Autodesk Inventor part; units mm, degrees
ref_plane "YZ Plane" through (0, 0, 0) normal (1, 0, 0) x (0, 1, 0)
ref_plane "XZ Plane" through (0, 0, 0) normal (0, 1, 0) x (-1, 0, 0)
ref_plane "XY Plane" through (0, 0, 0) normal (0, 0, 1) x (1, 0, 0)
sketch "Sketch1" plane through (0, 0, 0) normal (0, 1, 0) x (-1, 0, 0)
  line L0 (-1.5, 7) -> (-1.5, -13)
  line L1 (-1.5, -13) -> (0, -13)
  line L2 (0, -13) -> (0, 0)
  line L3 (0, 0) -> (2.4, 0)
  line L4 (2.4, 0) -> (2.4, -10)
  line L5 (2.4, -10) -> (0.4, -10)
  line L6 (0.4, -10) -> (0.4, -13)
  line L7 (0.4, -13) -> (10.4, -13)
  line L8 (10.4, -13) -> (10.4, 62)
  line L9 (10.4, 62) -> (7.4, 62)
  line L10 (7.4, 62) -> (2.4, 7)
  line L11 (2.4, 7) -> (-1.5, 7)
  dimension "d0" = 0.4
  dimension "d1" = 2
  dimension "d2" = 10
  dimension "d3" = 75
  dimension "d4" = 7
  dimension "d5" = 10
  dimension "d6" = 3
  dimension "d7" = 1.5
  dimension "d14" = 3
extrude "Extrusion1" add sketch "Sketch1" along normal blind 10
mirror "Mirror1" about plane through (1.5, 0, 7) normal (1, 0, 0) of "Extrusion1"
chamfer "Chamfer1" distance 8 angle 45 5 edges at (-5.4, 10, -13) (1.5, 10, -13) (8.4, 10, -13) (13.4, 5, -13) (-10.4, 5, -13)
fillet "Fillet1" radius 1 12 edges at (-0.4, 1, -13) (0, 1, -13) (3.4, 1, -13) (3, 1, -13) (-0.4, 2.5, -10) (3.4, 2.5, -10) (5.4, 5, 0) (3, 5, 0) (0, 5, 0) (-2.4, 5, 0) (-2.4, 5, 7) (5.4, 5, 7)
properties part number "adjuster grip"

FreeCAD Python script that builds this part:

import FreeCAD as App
import Part
import Sketcher
from FreeCAD import Vector


def edges_at(feature, points):
    """Names of the edges that pass closest to the given points."""
    edges = feature.Shape.Edges
    near = lambda p: min(range(len(edges)), key=lambda i: edges[i].distToShape(Part.Vertex(*p))[0])
    return sorted({f"Edge{near(p) + 1}" for p in points})


def add_polygon(sketch, points):
    """Adds a closed chain of lines whose ends are joined by coincident constraints."""
    first, n = sketch.GeometryCount, len(points)
    for a, b in zip(points, points[1:] + points[:1]):
        sketch.addGeometry(Part.LineSegment(App.Vector(*a, 0), App.Vector(*b, 0)), False)
    for i in range(n):
        sketch.addConstraint(Sketcher.Constraint("Coincident", first + i, 2, first + (i + 1) % n, 1))

doc = App.newDocument("Part")
params = doc.addObject("Spreadsheet::Sheet", "Params")
for row, (alias, value) in enumerate([
    ("sketch1_width", "2 mm"),
    ("sketch1_width2", "10 mm"),
    ("sketch1_width3", "3 mm"),
    ("sketch1_height", "75 mm"),
    ("sketch1_width4", "1.5 mm"),
    ("pad1_length", "10 mm"),
    ("chamfer_size", "8 mm"),
    ("fillet_radius", "1 mm"),
], start=1):
    params.set(f"A{row}", alias)
    params.set(f"B{row}", "=" + value)
    params.setAlias(f"B{row}", alias)

body = doc.addObject("PartDesign::Body", "Body")

# Sketch on XZ plane
sketch1 = doc.addObject("Sketcher::SketchObject", "Sketch")
body.addObject(sketch1)
sketch1.AttachmentSupport = (doc.XZ_Plane, [""])
sketch1.MapMode = "FlatFace"
add_polygon(sketch1, [(-2.4, 7), (1.5, 7), (1.5, -13), (0, -13), (0, 0), (-2.4, 0), (-2.4, -10), (-0.4, -10), (-0.4, -13), (-10.4, -13), (-10.4, 62), (-7.4, 62)])  # lines 0-11
sketch1.addConstraint(Sketcher.Constraint("Horizontal", 0))
sketch1.addConstraint(Sketcher.Constraint("Vertical", 1))
sketch1.addConstraint(Sketcher.Constraint("Horizontal", 2))
sketch1.addConstraint(Sketcher.Constraint("Vertical", 3))
sketch1.addConstraint(Sketcher.Constraint("Horizontal", 4))
sketch1.addConstraint(Sketcher.Constraint("Vertical", 5))
sketch1.addConstraint(Sketcher.Constraint("Horizontal", 6))
sketch1.addConstraint(Sketcher.Constraint("Vertical", 7))
sketch1.addConstraint(Sketcher.Constraint("Horizontal", 8))
sketch1.addConstraint(Sketcher.Constraint("Vertical", 9))
sketch1.addConstraint(Sketcher.Constraint("Horizontal", 10))
sketch1.addConstraint(Sketcher.Constraint("Coincident", 3, 2, -1, 1))
sketch1.addConstraint(Sketcher.Constraint("Horizontal", 2, 2, 7, 2))
sketch1.addConstraint(Sketcher.Constraint("Vertical", 5, 2, 11, 2))
sketch1.addConstraint(Sketcher.Constraint("Equal", 8, 5))
sketch1.addConstraint(Sketcher.Constraint("Equal", 10, 7))
sketch1.addConstraint(Sketcher.Constraint("DistanceX", 6, 1, 6, 2, 2.0))
sketch1.addConstraint(Sketcher.Constraint("DistanceX", 8, 2, 8, 1, 10.0))
sketch1.addConstraint(Sketcher.Constraint("DistanceX", 10, 1, 10, 2, 3.0))
sketch1.addConstraint(Sketcher.Constraint("DistanceY", 9, 1, 9, 2, 75.0))
sketch1.addConstraint(Sketcher.Constraint("DistanceX", 2, 2, 2, 1, 1.5))
sketch1.addConstraint(Sketcher.Constraint("DistanceY", -1, 1, 0, 2, 7.0))
sketch1.addConstraint(Sketcher.Constraint("DistanceX", 6, 2, -1, 1, 0.4))
sketch1.setExpression("Constraints[28]", "Params.sketch1_width")
sketch1.setExpression("Constraints[29]", "Params.sketch1_width2")
sketch1.setExpression("Constraints[30]", "Params.sketch1_width3")
sketch1.setExpression("Constraints[31]", "Params.sketch1_height")
sketch1.setExpression("Constraints[32]", "Params.sketch1_width4")
pad1 = doc.addObject("PartDesign::Pad", "Pad")
body.addObject(pad1)
pad1.Profile = sketch1
pad1.setExpression("Length", "Params.pad1_length")
pad1.Reversed = True
doc.recompute()

datumplane = doc.addObject("PartDesign::Plane", "DatumPlane")
body.addObject(datumplane)
datumplane.AttachmentSupport = (doc.YZ_Plane, [""])
datumplane.MapMode = "FlatFace"
datumplane.AttachmentOffset = App.Placement(Vector(0, 0, 1.5), App.Rotation())
mirrored = doc.addObject("PartDesign::Mirrored", "Mirrored")
body.addObject(mirrored)
mirrored.Originals = [pad1]
mirrored.MirrorPlane = (datumplane, [""])
body.Tip = mirrored
doc.recompute()

chamfer = doc.addObject("PartDesign::Chamfer", "Chamfer")
body.addObject(chamfer)
chamfer.Base = (mirrored, edges_at(mirrored, [
    (-5.4, 10, -13),
    (1.5, 10, -13),
    (8.4, 10, -13),
    (13.4, 5, -13),
    (-10.4, 5, -13),
]))
chamfer.setExpression("Size", "Params.chamfer_size")
doc.recompute()

fillet = doc.addObject("PartDesign::Fillet", "Fillet")
body.addObject(fillet)
fillet.Base = (chamfer, edges_at(chamfer, [
    (-0.4, 1, -13),
    (0, 1, -13),
    (3.4, 1, -13),
    (3, 1, -13),
    (-0.4, 2.5, -10),
    (3.4, 2.5, -10),
    (5.4, 5, 0),
    (3, 5, 0),
    (0, 5, 0),
    (-2.4, 5, 0),
    (-2.4, 5, 7),
    (5.4, 5, 7),
]))
fillet.setExpression("Radius", "Params.fillet_radius")

doc.recompute()
